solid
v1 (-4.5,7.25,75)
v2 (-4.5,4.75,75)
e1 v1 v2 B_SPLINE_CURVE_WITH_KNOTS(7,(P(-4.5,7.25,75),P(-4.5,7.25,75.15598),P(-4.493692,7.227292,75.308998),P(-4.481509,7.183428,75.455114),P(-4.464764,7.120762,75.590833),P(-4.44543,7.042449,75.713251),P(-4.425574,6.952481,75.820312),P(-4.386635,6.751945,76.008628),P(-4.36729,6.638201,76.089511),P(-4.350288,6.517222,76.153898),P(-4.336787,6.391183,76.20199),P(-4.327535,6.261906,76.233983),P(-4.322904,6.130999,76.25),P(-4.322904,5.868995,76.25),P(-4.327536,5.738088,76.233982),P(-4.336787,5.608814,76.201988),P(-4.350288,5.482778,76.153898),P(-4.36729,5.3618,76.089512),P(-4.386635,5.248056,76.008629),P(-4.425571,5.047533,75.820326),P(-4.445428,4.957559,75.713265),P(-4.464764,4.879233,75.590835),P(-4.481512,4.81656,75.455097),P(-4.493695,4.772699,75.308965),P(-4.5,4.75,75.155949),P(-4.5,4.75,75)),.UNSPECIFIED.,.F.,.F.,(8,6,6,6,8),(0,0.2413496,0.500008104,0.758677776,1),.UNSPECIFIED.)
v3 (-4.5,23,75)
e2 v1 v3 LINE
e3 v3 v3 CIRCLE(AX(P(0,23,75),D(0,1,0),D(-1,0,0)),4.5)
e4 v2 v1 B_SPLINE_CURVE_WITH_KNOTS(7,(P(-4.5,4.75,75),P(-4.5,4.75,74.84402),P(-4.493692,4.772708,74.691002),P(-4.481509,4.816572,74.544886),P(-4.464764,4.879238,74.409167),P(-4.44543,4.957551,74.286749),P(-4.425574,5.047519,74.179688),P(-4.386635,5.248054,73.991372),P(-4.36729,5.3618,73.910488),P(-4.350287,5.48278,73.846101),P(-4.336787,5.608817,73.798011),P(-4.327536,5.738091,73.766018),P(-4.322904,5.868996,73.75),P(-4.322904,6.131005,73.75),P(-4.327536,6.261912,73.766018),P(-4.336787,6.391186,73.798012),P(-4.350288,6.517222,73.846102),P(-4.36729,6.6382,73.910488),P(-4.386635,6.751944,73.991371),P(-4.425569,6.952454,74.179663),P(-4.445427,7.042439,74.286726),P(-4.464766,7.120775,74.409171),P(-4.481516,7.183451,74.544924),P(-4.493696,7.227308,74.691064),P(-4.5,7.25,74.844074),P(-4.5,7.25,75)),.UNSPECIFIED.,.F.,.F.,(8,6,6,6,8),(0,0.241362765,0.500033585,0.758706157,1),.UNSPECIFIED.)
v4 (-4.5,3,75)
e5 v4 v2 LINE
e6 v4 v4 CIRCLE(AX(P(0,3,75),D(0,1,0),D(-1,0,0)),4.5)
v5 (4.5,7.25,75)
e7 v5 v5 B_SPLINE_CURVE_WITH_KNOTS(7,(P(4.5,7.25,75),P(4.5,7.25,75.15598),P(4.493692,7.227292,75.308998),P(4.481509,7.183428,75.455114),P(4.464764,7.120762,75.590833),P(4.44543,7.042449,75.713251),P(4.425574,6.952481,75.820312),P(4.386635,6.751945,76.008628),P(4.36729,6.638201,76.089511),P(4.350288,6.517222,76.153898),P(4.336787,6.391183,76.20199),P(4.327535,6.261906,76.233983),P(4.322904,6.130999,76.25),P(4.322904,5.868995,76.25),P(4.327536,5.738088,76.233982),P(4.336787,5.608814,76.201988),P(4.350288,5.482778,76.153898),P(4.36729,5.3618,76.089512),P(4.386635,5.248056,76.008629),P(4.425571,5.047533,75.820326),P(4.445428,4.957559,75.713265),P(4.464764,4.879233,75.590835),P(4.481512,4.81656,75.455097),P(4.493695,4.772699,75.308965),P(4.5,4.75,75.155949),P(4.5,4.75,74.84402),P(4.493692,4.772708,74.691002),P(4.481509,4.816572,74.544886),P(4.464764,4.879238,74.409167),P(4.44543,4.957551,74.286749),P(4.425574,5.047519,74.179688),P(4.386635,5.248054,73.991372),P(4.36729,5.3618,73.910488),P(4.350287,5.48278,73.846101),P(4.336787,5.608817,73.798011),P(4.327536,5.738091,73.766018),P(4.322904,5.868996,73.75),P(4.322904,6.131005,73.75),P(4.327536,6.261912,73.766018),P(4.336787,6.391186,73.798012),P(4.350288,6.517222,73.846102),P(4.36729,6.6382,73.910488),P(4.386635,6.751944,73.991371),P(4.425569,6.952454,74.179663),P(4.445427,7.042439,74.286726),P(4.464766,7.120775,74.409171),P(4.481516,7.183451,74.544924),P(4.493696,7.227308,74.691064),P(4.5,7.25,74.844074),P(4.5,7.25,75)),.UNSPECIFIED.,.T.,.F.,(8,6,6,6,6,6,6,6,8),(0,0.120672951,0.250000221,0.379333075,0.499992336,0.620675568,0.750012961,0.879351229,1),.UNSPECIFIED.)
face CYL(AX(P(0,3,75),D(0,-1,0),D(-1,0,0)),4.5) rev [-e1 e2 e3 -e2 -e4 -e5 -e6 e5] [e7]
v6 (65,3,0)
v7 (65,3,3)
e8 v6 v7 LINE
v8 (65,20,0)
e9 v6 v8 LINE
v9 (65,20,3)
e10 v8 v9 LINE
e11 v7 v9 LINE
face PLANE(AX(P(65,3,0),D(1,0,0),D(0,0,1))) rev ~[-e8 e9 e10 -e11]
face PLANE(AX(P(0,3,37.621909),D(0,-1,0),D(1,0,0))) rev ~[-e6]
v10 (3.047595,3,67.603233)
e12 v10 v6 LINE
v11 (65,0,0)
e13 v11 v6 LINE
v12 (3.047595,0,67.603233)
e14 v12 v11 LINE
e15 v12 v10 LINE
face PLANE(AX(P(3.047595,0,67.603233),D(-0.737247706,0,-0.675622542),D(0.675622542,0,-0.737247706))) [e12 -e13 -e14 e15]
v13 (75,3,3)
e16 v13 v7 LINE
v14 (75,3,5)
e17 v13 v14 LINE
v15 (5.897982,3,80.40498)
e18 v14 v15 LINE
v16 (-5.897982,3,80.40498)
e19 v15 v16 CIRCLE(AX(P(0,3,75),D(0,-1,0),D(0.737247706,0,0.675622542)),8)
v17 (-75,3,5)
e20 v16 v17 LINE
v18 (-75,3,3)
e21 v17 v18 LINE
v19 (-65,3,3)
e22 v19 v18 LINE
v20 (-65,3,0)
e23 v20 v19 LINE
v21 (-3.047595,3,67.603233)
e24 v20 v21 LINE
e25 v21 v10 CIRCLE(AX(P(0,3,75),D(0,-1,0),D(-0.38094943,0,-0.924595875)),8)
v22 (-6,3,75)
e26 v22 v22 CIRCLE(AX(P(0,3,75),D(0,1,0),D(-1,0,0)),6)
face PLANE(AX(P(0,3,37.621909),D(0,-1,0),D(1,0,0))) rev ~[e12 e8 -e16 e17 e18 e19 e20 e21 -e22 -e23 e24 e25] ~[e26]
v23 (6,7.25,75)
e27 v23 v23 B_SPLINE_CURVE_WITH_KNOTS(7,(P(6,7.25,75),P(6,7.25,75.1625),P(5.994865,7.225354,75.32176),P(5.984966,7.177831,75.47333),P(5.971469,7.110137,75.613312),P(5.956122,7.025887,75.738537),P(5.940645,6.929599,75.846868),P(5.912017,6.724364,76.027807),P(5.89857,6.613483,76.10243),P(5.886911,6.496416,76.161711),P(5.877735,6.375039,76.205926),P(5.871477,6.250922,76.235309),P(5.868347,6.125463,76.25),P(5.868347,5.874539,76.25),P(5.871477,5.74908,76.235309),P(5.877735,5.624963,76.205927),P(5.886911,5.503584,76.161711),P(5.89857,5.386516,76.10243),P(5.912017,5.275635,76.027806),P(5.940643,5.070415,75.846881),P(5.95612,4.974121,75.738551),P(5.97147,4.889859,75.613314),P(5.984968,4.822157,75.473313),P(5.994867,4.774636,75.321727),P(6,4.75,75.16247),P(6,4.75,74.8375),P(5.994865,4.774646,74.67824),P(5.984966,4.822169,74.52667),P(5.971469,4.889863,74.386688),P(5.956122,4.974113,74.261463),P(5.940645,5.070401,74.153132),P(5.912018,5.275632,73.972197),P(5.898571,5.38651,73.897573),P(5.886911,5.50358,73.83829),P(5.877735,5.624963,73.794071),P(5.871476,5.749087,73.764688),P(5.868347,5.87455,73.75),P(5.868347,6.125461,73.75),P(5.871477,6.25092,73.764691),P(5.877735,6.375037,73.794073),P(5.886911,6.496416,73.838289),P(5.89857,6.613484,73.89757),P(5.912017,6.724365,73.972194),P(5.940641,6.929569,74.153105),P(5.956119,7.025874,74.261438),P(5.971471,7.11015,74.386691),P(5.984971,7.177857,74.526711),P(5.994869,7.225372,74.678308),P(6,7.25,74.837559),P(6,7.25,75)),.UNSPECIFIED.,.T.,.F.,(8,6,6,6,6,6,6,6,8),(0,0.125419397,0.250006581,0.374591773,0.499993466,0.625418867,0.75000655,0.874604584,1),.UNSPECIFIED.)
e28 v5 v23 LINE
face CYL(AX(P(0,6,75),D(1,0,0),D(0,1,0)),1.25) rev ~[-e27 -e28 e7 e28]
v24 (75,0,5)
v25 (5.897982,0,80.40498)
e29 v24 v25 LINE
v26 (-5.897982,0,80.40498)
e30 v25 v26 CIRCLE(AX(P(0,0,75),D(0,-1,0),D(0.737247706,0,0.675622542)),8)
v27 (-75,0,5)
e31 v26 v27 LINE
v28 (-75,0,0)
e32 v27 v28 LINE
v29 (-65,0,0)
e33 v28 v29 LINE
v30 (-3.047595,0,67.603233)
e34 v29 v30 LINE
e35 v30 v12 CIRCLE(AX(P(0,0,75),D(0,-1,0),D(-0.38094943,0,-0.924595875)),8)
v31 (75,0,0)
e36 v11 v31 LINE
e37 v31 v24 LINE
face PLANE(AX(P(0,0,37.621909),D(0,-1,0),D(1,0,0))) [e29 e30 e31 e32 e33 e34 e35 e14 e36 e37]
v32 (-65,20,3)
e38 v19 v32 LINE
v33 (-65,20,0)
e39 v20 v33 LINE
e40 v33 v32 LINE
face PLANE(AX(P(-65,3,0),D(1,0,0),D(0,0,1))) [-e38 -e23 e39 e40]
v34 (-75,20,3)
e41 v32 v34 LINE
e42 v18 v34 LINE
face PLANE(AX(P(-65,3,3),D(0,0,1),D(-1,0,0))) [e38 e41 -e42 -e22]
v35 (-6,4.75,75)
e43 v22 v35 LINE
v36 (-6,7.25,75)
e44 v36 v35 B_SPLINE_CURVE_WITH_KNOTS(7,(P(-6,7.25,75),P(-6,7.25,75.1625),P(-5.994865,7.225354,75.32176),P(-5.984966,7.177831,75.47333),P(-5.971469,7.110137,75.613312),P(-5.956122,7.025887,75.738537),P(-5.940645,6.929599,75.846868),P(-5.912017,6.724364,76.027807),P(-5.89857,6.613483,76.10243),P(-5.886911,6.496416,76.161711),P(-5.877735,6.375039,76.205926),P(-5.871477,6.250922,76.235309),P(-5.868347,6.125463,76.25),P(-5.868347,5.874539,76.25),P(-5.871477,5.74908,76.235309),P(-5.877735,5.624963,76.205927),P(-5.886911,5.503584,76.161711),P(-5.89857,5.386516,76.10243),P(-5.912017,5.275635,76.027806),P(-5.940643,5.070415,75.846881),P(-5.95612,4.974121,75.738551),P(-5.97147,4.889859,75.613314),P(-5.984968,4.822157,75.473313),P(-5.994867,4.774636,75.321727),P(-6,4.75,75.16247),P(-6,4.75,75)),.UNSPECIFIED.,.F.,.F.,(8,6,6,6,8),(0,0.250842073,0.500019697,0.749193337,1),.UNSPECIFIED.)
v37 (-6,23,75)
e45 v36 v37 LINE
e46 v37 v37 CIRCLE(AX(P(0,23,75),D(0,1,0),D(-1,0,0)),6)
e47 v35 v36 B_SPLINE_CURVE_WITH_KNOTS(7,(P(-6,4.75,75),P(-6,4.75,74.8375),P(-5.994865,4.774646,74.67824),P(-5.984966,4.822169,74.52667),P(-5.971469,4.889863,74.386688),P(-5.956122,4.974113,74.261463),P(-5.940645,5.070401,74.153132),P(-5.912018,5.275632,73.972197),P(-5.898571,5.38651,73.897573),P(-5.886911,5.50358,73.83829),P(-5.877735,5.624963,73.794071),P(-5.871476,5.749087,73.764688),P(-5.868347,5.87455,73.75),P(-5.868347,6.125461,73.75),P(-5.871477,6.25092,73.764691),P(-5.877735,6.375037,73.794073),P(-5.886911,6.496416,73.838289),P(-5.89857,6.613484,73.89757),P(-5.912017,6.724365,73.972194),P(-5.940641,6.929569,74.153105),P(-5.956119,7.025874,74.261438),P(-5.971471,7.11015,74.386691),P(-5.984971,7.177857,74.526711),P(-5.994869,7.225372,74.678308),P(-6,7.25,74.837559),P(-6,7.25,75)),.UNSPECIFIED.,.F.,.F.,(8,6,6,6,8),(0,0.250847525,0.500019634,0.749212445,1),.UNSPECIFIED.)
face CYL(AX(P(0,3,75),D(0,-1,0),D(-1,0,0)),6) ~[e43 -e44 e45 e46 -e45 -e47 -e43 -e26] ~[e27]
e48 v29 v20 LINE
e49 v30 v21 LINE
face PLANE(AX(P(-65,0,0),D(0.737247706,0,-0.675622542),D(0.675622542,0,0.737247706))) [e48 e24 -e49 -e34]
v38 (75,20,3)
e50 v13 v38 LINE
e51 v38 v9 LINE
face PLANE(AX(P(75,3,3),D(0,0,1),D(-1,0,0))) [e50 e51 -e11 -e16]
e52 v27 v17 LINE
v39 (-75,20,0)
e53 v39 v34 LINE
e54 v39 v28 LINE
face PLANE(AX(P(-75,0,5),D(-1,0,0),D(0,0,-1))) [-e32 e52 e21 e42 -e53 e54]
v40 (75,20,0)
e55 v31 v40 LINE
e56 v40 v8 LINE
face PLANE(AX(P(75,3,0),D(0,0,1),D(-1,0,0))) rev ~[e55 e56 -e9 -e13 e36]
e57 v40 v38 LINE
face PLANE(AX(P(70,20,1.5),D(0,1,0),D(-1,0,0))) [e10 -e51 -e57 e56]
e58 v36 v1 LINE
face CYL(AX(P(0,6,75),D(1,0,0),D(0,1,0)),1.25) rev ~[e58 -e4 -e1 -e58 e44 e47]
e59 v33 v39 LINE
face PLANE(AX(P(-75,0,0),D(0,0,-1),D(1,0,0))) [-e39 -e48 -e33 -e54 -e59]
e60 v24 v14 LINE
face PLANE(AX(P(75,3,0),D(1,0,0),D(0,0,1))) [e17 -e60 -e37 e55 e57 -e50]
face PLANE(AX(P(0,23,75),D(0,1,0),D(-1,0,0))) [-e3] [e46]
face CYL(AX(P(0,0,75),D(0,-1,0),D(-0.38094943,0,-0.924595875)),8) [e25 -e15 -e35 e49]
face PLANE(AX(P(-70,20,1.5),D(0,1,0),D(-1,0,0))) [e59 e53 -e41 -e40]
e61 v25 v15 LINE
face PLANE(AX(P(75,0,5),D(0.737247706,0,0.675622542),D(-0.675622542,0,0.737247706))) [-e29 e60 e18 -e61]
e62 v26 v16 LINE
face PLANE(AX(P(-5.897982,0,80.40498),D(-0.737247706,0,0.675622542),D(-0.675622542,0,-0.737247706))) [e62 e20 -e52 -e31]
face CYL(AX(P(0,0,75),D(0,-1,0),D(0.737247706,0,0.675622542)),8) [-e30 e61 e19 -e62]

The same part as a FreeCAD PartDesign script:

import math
import FreeCAD as App
import Part
import Sketcher

V = App.Vector
Q = App.Units.Quantity


def add_polygon(sketch, points):
    """Adds a closed chain of lines whose ends are joined by coincident constraints."""
    first, n = sketch.GeometryCount, len(points)
    for a, b in zip(points, points[1:] + points[:1]):
        sketch.addGeometry(Part.LineSegment(App.Vector(*a, 0), App.Vector(*b, 0)), False)
    for i in range(n):
        sketch.addConstraint(Sketcher.Constraint("Coincident", first + i, 2, first + (i + 1) % n, 1))

doc = App.newDocument("Part")
params = doc.addObject("Spreadsheet::Sheet", "Params")
for row, (alias, value) in enumerate([
    ("sketch1_radius", "8 mm"),
    ("sketch1_width", "10 mm"),
    ("sketch1_height", "5 mm"),
    ("pad1_length", "3 mm"),
    ("sketch2_diameter", "12 mm"),
    ("sketch2_diameter2", "9 mm"),
    ("pad2_length", "20 mm"),
    ("sketch3_width", "10 mm"),
    ("sketch3_height", "3 mm"),
    ("pad3_length", "17 mm"),
    ("sketch4_diameter", "2.5 mm"),
    ("pocket1_length", "25 mm"),
], start=1):
    params.set(f"A{row}", alias)
    params.set(f"B{row}", "=" + value)
    params.setAlias(f"B{row}", alias)

body = doc.addObject("PartDesign::Body", "Body")

sketch1 = body.newObject("Sketcher::SketchObject", "Sketch")
sketch1.AttachmentSupport = (doc.getObject("XZ_Plane"), [""])
sketch1.MapMode = "FlatFace"
sketch1.addGeometry([
    Part.LineSegment(V(-75, 5, 0), V(-75, 0, 0)),
    Part.LineSegment(V(-75, 0, 0), V(-65, 0, 0)),
    Part.LineSegment(V(-65, 0, 0), V(-3, 68, 0)),
    Part.ArcOfCircle(Part.Circle(V(0, 75, 0), V(0, 0, 1), 8), math.radians(-112), math.radians(-68)),
    Part.LineSegment(V(3, 68, 0), V(65, 0, 0)),
    Part.LineSegment(V(65, 0, 0), V(75, 0, 0)),
    Part.LineSegment(V(75, 0, 0), V(75, 5, 0)),
    Part.LineSegment(V(75, 5, 0), V(6, 80, 0)),
    Part.ArcOfCircle(Part.Circle(V(0, 75, 0), V(0, 0, 1), 8), math.radians(43), math.radians(137)),
    Part.LineSegment(V(-6, 80, 0), V(-75, 5, 0)),
], False)
sketch1.addConstraint([
    Sketcher.Constraint("Coincident", 0, 2, 1, 1),
    Sketcher.Constraint("Coincident", 1, 2, 2, 1),
    Sketcher.Constraint("Coincident", 2, 2, 3, 1),
    Sketcher.Constraint("Coincident", 3, 2, 4, 1),
    Sketcher.Constraint("Coincident", 4, 2, 5, 1),
    Sketcher.Constraint("Coincident", 5, 2, 6, 1),
    Sketcher.Constraint("Coincident", 6, 2, 7, 1),
    Sketcher.Constraint("Tangent", 7, 2, 8, 1),
    Sketcher.Constraint("Tangent", 8, 2, 9, 1),
    Sketcher.Constraint("Coincident", 9, 2, 0, 1),
    Sketcher.Constraint("Vertical", 0),
    Sketcher.Constraint("Horizontal", 1),
    Sketcher.Constraint("Horizontal", 5),
    Sketcher.Constraint("Vertical", 6),
    Sketcher.Constraint("Coincident", 8, 3, 3, 3),
    Sketcher.Constraint("Equal", 3, 8),
    Sketcher.Constraint("Symmetric", 1, 2, 4, 2, -1, 1),
    Sketcher.Constraint("Symmetric", 2, 2, 3, 2, -2),
    Sketcher.Constraint("Symmetric", 0, 2, 5, 2, -2),
    Sketcher.Constraint("Parallel", 4, 7),
    Sketcher.Constraint("Parallel", 2, 9),
    Sketcher.Constraint("Radius", 3, Q("8 mm")),
    Sketcher.Constraint("DistanceX", 1, 1, 1, 2, Q("10 mm")),
    Sketcher.Constraint("DistanceY", 0, 2, 0, 1, Q("5 mm")),
    Sketcher.Constraint("DistanceY", -1, 1, 3, 3, Q("75 mm")),
    Sketcher.Constraint("DistanceX", 0, 2, -1, 1, Q("75 mm")),
])
sketch1.setExpression("Constraints[21]", "Params.sketch1_radius")
sketch1.setExpression("Constraints[22]", "Params.sketch1_width")
sketch1.setExpression("Constraints[23]", "Params.sketch1_height")
pad1 = body.newObject("PartDesign::Pad", "Pad")
pad1.Profile = sketch1
pad1.setExpression("Length", "Params.pad1_length")
pad1.Reversed = True

sketch2 = body.newObject("Sketcher::SketchObject", "Sketch001")
sketch2.AttachmentSupport = (doc.getObject("XZ_Plane"), [""])
sketch2.MapMode = "FlatFace"
sketch2.AttachmentOffset = App.Placement(V(0, 0, -3), App.Rotation())
sketch2.addGeometry([
    Part.Circle(V(0, 75, 0), V(0, 0, 1), 6),
    Part.Circle(V(0, 75, 0), V(0, 0, 1), 4.5),
], False)
sketch2.addConstraint([
    Sketcher.Constraint("Coincident", 1, 3, 0, 3),
    Sketcher.Constraint("PointOnObject", 0, 3, -2),
    Sketcher.Constraint("Diameter", 0, Q("12 mm")),
    Sketcher.Constraint("Diameter", 1, Q("9 mm")),
    Sketcher.Constraint("DistanceY", -1, 1, 0, 3, Q("75 mm")),
])
sketch2.setExpression("Constraints[2]", "Params.sketch2_diameter")
sketch2.setExpression("Constraints[3]", "Params.sketch2_diameter2")
pad2 = body.newObject("PartDesign::Pad", "Pad001")
pad2.Profile = sketch2
pad2.setExpression("Length", "Params.pad2_length")
pad2.Reversed = True

sketch3 = body.newObject("Sketcher::SketchObject", "Sketch002")
sketch3.AttachmentSupport = (doc.getObject("XZ_Plane"), [""])
sketch3.MapMode = "FlatFace"
sketch3.AttachmentOffset = App.Placement(V(0, 0, -3), App.Rotation())
add_polygon(sketch3, [(75, 3), (75, 0), (65, 0), (65, 3)])
add_polygon(sketch3, [(-65, 3), (-65, 0), (-75, 0), (-75, 3)])
sketch3.addConstraint([
    Sketcher.Constraint("Vertical", 0),
    Sketcher.Constraint("Horizontal", 1),
    Sketcher.Constraint("Vertical", 2),
    Sketcher.Constraint("Horizontal", 3),
    Sketcher.Constraint("Vertical", 4),
    Sketcher.Constraint("Horizontal", 5),
    Sketcher.Constraint("Vertical", 6),
    Sketcher.Constraint("Horizontal", 7),
    Sketcher.Constraint("Symmetric", 1, 2, 4, 2, -1, 1),
    Sketcher.Constraint("Symmetric", 0, 2, 5, 2, -2),
    Sketcher.Constraint("Horizontal", 3, 2, 6, 2),
    Sketcher.Constraint("DistanceX", 1, 2, 1, 1, Q("10 mm")),
    Sketcher.Constraint("DistanceY", 0, 2, 0, 1, Q("3 mm")),
    Sketcher.Constraint("DistanceX", -1, 1, 0, 2, Q("75 mm")),
])
sketch3.setExpression("Constraints[19]", "Params.sketch3_width")
sketch3.setExpression("Constraints[20]", "Params.sketch3_height")
pad3 = body.newObject("PartDesign::Pad", "Pad002")
pad3.Profile = sketch3
pad3.setExpression("Length", "Params.pad3_length")
pad3.Reversed = True

sketch4 = body.newObject("Sketcher::SketchObject", "Sketch003")
sketch4.AttachmentSupport = (doc.getObject("YZ_Plane"), [""])
sketch4.MapMode = "FlatFace"
sketch4.addGeometry(Part.Circle(V(6, 75, 0), V(0, 0, 1), 1.2), False)
sketch4.addConstraint([
    Sketcher.Constraint("Diameter", 0, Q("2.5 mm")),
    Sketcher.Constraint("DistanceX", -1, 1, 0, 3, Q("6 mm")),
    Sketcher.Constraint("DistanceY", -1, 1, 0, 3, Q("75 mm")),
])
sketch4.setExpression("Constraints[0]", "Params.sketch4_diameter")
pocket1 = body.newObject("PartDesign::Pocket", "Pocket")
pocket1.Profile = sketch4
pocket1.setExpression("Length", "Params.pocket1_length")
pocket1.Midplane = True

doc.recompute()
